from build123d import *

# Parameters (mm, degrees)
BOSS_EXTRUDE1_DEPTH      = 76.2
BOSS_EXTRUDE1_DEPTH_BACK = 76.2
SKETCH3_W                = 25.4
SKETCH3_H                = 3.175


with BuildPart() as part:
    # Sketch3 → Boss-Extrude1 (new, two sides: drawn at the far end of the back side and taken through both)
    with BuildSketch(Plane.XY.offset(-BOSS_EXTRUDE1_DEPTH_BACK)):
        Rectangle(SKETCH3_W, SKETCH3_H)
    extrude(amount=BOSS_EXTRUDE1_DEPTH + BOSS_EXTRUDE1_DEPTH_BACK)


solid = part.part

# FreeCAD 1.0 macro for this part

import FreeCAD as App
import Part
import Sketcher
from FreeCAD import Vector
Q = App.Units.Quantity

doc = App.newDocument("Part")
body = doc.addObject("PartDesign::Body", "Body")

# Sketch on XY plane
sketch1 = body.newObject("Sketcher::SketchObject", "Sketch")
sketch1.AttachmentSupport = (doc.getObject("XY_Plane"), [""])
sketch1.MapMode = "FlatFace"
sketch1.addGeometry([
    Part.LineSegment(Vector(-12.7, 1.6, 0), Vector(-12.7, -1.6, 0)),
    Part.LineSegment(Vector(-12.7, -1.6, 0), Vector(12.7, -1.6, 0)),
    Part.LineSegment(Vector(12.7, -1.6, 0), Vector(12.7, 1.6, 0)),
    Part.LineSegment(Vector(12.7, 1.6, 0), Vector(-12.7, 1.6, 0)),
], False)
sketch1.addConstraint([
    Sketcher.Constraint("Coincident", 0, 2, 1, 1),
    Sketcher.Constraint("Coincident", 1, 2, 2, 1),
    Sketcher.Constraint("Coincident", 2, 2, 3, 1),
    Sketcher.Constraint("Coincident", 3, 2, 0, 1),
    Sketcher.Constraint("Vertical", 0),
    Sketcher.Constraint("Horizontal", 1),
    Sketcher.Constraint("Vertical", 2),
    Sketcher.Constraint("Horizontal", 3),
    Sketcher.Constraint("Symmetric", 0, 2, 2, 2, -1, 1),
    Sketcher.Constraint("DistanceX", 1, 1, 1, 2, Q("1 in")),
    Sketcher.Constraint("DistanceY", 0, 2, 0, 1, Q("0.125 in")),
])
pad1 = body.newObject("PartDesign::Pad", "Pad")
pad1.Profile = sketch1
pad1.Type = "TwoLengths"
pad1.Length = Q("3 in")
pad1.Length2 = Q("3 in")

doc.recompute()
